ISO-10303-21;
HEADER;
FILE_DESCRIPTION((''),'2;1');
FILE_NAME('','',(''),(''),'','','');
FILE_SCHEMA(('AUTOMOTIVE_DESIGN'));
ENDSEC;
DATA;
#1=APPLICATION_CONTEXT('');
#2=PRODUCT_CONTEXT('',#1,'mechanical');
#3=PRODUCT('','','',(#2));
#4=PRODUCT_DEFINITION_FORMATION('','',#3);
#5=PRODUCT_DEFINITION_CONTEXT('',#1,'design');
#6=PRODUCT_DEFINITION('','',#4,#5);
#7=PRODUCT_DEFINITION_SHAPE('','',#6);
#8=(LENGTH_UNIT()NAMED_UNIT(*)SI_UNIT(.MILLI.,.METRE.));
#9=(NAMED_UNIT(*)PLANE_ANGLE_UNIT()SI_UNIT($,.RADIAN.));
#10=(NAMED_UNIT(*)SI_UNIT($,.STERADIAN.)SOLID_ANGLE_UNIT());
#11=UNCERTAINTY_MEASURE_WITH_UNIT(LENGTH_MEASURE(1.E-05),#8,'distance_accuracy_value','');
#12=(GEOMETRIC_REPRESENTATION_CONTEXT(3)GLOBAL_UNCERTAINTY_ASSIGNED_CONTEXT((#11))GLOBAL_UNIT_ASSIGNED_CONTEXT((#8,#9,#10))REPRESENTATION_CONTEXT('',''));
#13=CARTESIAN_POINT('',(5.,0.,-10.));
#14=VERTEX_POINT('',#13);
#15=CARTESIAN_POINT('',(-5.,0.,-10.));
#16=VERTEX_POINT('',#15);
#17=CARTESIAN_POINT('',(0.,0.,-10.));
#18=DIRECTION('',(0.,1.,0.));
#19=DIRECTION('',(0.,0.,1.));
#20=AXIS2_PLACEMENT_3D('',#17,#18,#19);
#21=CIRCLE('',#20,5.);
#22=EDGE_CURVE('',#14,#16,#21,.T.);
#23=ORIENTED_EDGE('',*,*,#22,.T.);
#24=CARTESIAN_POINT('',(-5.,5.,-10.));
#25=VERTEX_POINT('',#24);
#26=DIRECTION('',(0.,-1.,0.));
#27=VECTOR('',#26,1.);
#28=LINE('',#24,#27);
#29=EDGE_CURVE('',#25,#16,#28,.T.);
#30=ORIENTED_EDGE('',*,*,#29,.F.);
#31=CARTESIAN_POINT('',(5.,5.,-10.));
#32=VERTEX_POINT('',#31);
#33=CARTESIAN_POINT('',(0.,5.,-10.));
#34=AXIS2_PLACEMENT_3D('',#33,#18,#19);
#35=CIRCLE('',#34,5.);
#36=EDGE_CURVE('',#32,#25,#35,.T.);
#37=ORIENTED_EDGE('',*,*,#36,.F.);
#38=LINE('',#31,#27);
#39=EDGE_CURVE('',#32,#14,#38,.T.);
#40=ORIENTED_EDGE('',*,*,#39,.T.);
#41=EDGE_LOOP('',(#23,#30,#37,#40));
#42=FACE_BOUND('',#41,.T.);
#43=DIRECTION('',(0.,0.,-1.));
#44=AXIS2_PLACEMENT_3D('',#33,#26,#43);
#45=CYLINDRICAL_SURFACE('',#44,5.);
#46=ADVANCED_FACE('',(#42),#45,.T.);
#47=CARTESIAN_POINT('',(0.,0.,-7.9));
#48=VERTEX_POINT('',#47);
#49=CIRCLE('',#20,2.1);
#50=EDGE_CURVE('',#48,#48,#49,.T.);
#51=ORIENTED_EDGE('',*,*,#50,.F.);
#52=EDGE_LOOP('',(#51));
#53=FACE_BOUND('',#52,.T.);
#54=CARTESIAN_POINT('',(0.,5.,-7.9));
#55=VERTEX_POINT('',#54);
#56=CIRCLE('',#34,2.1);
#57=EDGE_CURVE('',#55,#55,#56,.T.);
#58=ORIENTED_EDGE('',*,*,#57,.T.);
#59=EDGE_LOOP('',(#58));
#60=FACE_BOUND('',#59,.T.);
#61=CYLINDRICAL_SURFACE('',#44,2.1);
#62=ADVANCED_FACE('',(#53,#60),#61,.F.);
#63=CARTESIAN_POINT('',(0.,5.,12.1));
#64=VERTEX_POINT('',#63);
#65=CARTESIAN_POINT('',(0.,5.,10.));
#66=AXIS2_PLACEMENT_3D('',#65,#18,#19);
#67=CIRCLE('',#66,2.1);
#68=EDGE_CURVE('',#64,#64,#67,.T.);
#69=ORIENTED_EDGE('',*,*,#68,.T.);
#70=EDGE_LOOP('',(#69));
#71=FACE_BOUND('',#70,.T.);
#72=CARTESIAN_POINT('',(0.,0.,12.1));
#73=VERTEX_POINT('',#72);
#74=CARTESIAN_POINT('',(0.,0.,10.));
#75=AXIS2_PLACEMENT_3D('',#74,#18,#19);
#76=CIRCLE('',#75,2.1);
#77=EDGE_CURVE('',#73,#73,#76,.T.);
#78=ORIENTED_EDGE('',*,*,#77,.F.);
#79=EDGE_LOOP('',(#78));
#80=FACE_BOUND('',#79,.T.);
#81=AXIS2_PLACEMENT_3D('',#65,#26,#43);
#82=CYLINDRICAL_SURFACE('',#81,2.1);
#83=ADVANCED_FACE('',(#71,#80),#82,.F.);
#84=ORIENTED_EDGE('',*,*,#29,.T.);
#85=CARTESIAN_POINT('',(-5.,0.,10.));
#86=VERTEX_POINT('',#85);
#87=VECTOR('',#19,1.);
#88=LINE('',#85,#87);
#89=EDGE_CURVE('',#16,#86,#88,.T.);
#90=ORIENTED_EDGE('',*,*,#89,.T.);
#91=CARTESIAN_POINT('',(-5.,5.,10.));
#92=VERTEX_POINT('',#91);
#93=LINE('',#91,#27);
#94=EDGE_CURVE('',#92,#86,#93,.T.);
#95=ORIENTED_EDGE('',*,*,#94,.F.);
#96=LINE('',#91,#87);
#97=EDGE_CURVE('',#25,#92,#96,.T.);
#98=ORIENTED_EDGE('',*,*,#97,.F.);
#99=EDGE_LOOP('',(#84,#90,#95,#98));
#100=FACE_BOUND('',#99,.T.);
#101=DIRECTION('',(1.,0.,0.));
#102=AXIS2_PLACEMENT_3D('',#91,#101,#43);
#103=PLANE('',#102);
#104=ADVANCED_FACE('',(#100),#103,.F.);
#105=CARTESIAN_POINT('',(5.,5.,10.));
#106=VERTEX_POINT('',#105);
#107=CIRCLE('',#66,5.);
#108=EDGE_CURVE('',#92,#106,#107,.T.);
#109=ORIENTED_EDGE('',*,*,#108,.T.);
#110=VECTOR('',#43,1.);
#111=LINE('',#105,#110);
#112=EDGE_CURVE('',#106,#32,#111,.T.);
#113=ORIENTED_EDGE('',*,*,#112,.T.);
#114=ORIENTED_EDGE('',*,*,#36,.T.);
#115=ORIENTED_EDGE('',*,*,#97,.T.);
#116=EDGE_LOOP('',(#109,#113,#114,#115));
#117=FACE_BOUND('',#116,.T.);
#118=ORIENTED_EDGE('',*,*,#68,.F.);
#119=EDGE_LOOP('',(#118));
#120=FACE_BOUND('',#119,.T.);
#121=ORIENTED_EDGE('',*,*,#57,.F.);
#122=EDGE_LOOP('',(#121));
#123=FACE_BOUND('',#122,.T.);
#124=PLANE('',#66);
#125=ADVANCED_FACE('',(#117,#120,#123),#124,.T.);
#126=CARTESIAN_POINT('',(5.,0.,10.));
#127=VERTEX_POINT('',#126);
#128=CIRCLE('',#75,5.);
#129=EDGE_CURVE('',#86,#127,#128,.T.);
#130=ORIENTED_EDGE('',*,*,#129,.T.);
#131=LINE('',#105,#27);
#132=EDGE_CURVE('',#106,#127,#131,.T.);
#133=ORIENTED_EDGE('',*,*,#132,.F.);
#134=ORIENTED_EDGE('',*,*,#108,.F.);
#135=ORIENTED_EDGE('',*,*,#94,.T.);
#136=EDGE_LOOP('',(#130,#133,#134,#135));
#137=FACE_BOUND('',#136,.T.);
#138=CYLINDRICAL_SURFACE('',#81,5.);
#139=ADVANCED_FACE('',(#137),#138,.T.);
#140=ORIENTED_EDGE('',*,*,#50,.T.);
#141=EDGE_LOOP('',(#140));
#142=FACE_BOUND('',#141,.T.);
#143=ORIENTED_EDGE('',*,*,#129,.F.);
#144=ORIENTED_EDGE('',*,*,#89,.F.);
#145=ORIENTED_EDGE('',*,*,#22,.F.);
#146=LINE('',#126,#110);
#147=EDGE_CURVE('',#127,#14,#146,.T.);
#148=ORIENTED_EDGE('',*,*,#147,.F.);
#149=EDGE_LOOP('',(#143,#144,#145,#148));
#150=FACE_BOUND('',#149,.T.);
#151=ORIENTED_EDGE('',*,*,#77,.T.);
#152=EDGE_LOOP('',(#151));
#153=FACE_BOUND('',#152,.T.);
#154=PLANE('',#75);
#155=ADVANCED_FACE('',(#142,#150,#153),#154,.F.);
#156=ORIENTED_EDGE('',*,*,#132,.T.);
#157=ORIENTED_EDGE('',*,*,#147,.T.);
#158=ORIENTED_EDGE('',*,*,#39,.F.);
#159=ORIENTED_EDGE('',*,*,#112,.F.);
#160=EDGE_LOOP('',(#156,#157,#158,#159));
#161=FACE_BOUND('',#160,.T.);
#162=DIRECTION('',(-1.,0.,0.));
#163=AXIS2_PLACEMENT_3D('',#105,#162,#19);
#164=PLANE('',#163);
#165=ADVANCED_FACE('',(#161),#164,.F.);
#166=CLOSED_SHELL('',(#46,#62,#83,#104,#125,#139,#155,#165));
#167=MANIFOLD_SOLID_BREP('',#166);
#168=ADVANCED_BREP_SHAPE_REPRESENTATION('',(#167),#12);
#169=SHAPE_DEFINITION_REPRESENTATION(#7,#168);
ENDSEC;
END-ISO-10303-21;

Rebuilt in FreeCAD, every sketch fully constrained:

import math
import FreeCAD as App
import Part
import Sketcher

doc = App.newDocument("Part")
params = doc.addObject("Spreadsheet::Sheet", "Params")
for row, (alias, value) in enumerate([
    ("sketch1_radius", "5 mm"),
    ("sketch1_diameter", "4.2 mm"),
    ("sketch1_height", "20 mm"),
    ("pad1_length", "5 mm"),
], start=1):
    params.set(f"A{row}", alias)
    params.set(f"B{row}", "=" + value)
    params.setAlias(f"B{row}", alias)

body = doc.addObject("PartDesign::Body", "Body")

sketch1 = body.newObject("Sketcher::SketchObject", "Sketch")
sketch1.AttachmentSupport = (doc.getObject("XZ_Plane"), [""])
sketch1.MapMode = "FlatFace"
sketch1.addGeometry(Part.LineSegment(App.Vector(-5, -10, 0), App.Vector(-5, 10, 0)), False)
sketch1.addGeometry(Part.ArcOfCircle(Part.Circle(App.Vector(0, 10, 0), App.Vector(0, 0, 1), 5), math.radians(0), math.radians(180)), False)
sketch1.addGeometry(Part.LineSegment(App.Vector(5, 10, 0), App.Vector(5, -10, 0)), False)
sketch1.addGeometry(Part.ArcOfCircle(Part.Circle(App.Vector(0, -10, 0), App.Vector(0, 0, 1), 5), math.radians(180), math.radians(360)), False)
sketch1.addGeometry(Part.Circle(App.Vector(0, 10, 0), App.Vector(0, 0, 1), 2.1), False)
sketch1.addGeometry(Part.Circle(App.Vector(0, -10, 0), App.Vector(0, 0, 1), 2.1), False)
sketch1.addConstraint(Sketcher.Constraint("Tangent", 0, 2, 1, 2))
sketch1.addConstraint(Sketcher.Constraint("Tangent", 1, 1, 2, 1))
sketch1.addConstraint(Sketcher.Constraint("Tangent", 2, 2, 3, 2))
sketch1.addConstraint(Sketcher.Constraint("Tangent", 3, 1, 0, 1))
sketch1.addConstraint(Sketcher.Constraint("Vertical", 0))
sketch1.addConstraint(Sketcher.Constraint("Vertical", 2))
sketch1.addConstraint(Sketcher.Constraint("Coincident", 4, 3, 1, 3))
sketch1.addConstraint(Sketcher.Constraint("Coincident", 5, 3, 3, 3))
sketch1.addConstraint(Sketcher.Constraint("Equal", 4, 5))
sketch1.addConstraint(Sketcher.Constraint("Symmetric", 1, 3, 3, 3, -1, 1))
sketch1.addConstraint(Sketcher.Constraint("Radius", 1, 5.0))
sketch1.addConstraint(Sketcher.Constraint("Diameter", 4, 4.2))
sketch1.addConstraint(Sketcher.Constraint("DistanceY", 0, 1, 0, 2, 20.0))
sketch1.setExpression("Constraints[10]", "Params.sketch1_radius")
sketch1.setExpression("Constraints[11]", "Params.sketch1_diameter")
sketch1.setExpression("Constraints[12]", "Params.sketch1_height")
pad1 = body.newObject("PartDesign::Pad", "Pad")
pad1.Profile = sketch1
pad1.setExpression("Length", "Params.pad1_length")
pad1.Reversed = True

doc.recompute()
